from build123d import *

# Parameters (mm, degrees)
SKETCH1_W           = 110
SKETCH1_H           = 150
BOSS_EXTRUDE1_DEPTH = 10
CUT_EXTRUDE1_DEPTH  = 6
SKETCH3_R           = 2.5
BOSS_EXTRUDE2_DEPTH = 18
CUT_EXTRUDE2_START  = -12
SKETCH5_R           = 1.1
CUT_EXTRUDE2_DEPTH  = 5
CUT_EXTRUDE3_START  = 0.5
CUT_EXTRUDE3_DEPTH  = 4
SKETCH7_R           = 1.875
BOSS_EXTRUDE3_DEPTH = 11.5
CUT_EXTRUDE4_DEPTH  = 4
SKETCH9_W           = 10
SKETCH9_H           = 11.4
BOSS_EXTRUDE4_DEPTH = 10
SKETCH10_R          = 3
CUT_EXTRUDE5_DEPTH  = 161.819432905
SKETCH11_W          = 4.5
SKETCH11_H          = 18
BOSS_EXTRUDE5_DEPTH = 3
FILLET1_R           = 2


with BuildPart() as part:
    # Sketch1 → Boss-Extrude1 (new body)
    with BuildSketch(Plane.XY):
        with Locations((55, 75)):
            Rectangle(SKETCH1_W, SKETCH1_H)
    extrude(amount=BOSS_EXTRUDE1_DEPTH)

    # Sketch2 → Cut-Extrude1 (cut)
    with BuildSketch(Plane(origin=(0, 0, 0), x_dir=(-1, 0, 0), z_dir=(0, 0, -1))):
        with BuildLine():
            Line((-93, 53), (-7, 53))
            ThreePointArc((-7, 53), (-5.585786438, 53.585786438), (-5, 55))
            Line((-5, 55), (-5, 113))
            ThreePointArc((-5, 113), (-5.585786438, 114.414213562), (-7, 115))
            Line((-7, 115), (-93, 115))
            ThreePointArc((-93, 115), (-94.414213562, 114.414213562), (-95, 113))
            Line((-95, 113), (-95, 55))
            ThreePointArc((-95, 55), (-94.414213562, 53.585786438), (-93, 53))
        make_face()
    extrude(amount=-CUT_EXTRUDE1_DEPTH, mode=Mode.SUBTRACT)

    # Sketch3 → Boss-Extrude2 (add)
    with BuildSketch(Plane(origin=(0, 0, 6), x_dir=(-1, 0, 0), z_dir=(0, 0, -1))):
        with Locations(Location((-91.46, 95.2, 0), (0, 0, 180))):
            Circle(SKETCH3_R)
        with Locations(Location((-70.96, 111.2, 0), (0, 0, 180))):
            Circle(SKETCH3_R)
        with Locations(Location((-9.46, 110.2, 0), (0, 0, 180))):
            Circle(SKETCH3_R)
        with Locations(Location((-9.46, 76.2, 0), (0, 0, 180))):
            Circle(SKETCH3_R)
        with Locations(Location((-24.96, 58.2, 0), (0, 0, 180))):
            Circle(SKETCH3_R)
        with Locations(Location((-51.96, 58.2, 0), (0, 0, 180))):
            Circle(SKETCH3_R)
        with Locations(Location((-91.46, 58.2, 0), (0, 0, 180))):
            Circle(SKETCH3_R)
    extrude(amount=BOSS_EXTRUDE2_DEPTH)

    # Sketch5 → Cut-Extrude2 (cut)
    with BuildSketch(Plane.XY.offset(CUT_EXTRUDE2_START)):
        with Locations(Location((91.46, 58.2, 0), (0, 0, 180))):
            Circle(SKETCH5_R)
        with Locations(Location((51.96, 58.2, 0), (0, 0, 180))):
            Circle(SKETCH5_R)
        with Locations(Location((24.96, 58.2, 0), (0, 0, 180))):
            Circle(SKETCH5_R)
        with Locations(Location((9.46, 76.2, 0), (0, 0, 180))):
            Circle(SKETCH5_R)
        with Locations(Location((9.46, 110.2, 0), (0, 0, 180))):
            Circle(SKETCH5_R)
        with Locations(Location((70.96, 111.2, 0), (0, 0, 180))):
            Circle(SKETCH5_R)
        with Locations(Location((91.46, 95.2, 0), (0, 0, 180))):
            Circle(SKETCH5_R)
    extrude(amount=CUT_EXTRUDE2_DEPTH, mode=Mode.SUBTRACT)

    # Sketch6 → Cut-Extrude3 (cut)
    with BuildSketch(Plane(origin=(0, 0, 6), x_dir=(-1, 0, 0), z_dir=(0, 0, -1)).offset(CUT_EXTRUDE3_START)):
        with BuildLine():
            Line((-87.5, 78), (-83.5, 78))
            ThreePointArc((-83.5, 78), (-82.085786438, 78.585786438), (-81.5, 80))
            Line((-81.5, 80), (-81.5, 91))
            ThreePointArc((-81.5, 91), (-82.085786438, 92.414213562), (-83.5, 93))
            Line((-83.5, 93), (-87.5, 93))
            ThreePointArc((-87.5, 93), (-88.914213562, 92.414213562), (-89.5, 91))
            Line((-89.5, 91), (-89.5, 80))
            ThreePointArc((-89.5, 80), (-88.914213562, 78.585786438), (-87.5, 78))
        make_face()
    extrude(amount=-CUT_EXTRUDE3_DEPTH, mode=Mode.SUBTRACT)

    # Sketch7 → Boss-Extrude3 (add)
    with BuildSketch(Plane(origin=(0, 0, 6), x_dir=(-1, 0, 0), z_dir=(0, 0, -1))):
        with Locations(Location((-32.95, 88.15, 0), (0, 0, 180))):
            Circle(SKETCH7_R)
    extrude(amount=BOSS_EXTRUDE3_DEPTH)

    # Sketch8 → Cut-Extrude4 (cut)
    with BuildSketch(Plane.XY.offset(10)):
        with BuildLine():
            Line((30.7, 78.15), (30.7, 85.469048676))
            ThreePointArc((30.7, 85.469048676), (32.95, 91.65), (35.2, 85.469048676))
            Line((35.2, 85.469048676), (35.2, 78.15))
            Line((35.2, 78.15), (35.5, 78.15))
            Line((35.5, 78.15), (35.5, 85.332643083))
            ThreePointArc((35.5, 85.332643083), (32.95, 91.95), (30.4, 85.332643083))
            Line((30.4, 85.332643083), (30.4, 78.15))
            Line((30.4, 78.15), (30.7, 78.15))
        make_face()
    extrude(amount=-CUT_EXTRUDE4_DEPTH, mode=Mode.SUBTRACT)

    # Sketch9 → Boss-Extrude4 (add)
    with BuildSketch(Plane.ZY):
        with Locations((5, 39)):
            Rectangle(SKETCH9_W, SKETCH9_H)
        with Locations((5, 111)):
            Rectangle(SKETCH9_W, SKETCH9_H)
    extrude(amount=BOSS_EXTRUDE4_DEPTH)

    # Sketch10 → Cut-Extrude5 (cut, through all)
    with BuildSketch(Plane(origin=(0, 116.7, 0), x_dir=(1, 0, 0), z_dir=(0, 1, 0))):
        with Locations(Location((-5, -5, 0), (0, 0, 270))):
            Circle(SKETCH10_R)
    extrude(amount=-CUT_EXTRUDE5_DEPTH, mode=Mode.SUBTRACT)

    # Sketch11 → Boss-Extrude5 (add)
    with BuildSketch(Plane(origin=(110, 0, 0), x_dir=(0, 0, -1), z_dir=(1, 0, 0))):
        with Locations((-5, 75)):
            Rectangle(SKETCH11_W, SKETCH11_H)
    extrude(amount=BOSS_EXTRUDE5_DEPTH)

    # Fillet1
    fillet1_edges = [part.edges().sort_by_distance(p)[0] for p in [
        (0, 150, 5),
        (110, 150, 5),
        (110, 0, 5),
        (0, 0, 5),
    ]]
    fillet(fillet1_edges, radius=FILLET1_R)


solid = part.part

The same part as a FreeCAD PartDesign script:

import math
import FreeCAD as App
import Part
import Sketcher
Q = App.Units.Quantity


def edges_at(feature, points):
    """Names of the edges that pass closest to the given points."""
    edges = feature.Shape.Edges
    near = lambda p: min(range(len(edges)), key=lambda i: edges[i].distToShape(Part.Vertex(*p))[0])
    return sorted({f"Edge{near(p) + 1}" for p in points})


def add_polygon(sketch, points):
    """Adds a closed chain of lines whose ends are joined by coincident constraints."""
    first, n = sketch.GeometryCount, len(points)
    for a, b in zip(points, points[1:] + points[:1]):
        sketch.addGeometry(Part.LineSegment(App.Vector(*a, 0), App.Vector(*b, 0)), False)
    for i in range(n):
        sketch.addConstraint(Sketcher.Constraint("Coincident", first + i, 2, first + (i + 1) % n, 1))

doc = App.newDocument("Part")
body = doc.addObject("PartDesign::Body", "Body")

# Sketch on XY plane
sketch1 = doc.addObject("Sketcher::SketchObject", "Sketch")
body.addObject(sketch1)
sketch1.AttachmentSupport = (doc.XY_Plane, [""])
sketch1.MapMode = "FlatFace"
add_polygon(sketch1, [(0, 150), (0, 0), (110, 0), (110, 150)])  # lines 0-3
sketch1.addConstraint([
    Sketcher.Constraint("Vertical", 0),
    Sketcher.Constraint("Horizontal", 1),
    Sketcher.Constraint("Vertical", 2),
    Sketcher.Constraint("Horizontal", 3),
    Sketcher.Constraint("Coincident", 0, 2, -1, 1),
    Sketcher.Constraint("DistanceX", 1, 1, 1, 2, Q("110 mm")),
    Sketcher.Constraint("DistanceY", 0, 2, 0, 1, Q("150 mm")),
])
pad1 = doc.addObject("PartDesign::Pad", "Pad")
body.addObject(pad1)
pad1.Profile = sketch1
pad1.Length = 10

# Sketch on XY plane
sketch2 = doc.addObject("Sketcher::SketchObject", "Sketch001")
body.addObject(sketch2)
sketch2.AttachmentSupport = (doc.XY_Plane, [""])
sketch2.MapMode = "FlatFace"
sketch2.addGeometry([
    Part.LineSegment(App.Vector(93, 53, 0), App.Vector(7, 53, 0)),  # 0
    Part.ArcOfCircle(Part.Circle(App.Vector(7, 55, 0), App.Vector(0, 0, 1), 2), math.radians(-180), math.radians(-90)),  # 1
    Part.LineSegment(App.Vector(5, 55, 0), App.Vector(5, 113, 0)),  # 2
    Part.ArcOfCircle(Part.Circle(App.Vector(7, 113, 0), App.Vector(0, 0, 1), 2), math.radians(90), math.radians(180)),  # 3
    Part.LineSegment(App.Vector(7, 115, 0), App.Vector(93, 115, 0)),  # 4
    Part.ArcOfCircle(Part.Circle(App.Vector(93, 113, 0), App.Vector(0, 0, 1), 2), math.radians(0), math.radians(90)),  # 5
    Part.LineSegment(App.Vector(95, 113, 0), App.Vector(95, 55, 0)),  # 6
    Part.ArcOfCircle(Part.Circle(App.Vector(93, 55, 0), App.Vector(0, 0, 1), 2), math.radians(-90), math.radians(0)),  # 7
], False)
sketch2.addConstraint([
    Sketcher.Constraint("Tangent", 0, 2, 1, 2),
    Sketcher.Constraint("Tangent", 1, 1, 2, 1),
    Sketcher.Constraint("Tangent", 2, 2, 3, 2),
    Sketcher.Constraint("Tangent", 3, 1, 4, 1),
    Sketcher.Constraint("Tangent", 4, 2, 5, 2),
    Sketcher.Constraint("Tangent", 5, 1, 6, 1),
    Sketcher.Constraint("Tangent", 6, 2, 7, 2),
    Sketcher.Constraint("Tangent", 7, 1, 0, 1),
    Sketcher.Constraint("Horizontal", 0),
    Sketcher.Constraint("Vertical", 2),
    Sketcher.Constraint("Horizontal", 4),
    Sketcher.Constraint("Vertical", 6),
    Sketcher.Constraint("Equal", 1, 3),
    Sketcher.Constraint("Equal", 3, 5),
    Sketcher.Constraint("Equal", 5, 7),
    Sketcher.Constraint("Radius", 1, Q("2 mm")),
    Sketcher.Constraint("DistanceX", 0, 2, 0, 1, Q("86 mm")),
    Sketcher.Constraint("DistanceY", 2, 1, 2, 2, Q("58 mm")),
    Sketcher.Constraint("DistanceX", -1, 1, 1, 3, Q("7 mm")),
    Sketcher.Constraint("DistanceY", -1, 1, 1, 3, Q("55 mm")),
])
pocket1 = doc.addObject("PartDesign::Pocket", "Pocket")
body.addObject(pocket1)
pocket1.Profile = sketch2
pocket1.Length = 6
pocket1.Reversed = True

# Sketch on XY plane
sketch3 = doc.addObject("Sketcher::SketchObject", "Sketch002")
body.addObject(sketch3)
sketch3.AttachmentSupport = (doc.XY_Plane, [""])
sketch3.MapMode = "FlatFace"
sketch3.AttachmentOffset = App.Placement(App.Vector(0, 0, 6), App.Rotation())
sketch3.addGeometry([
    Part.Circle(App.Vector(91.5, 95.2, 0), App.Vector(0, 0, 1), 2.5),  # 0
    Part.Circle(App.Vector(71, 111.2, 0), App.Vector(0, 0, 1), 2.5),  # 1
    Part.Circle(App.Vector(9.5, 110.2, 0), App.Vector(0, 0, 1), 2.5),  # 2
    Part.Circle(App.Vector(9.5, 76.2, 0), App.Vector(0, 0, 1), 2.5),  # 3
    Part.Circle(App.Vector(25, 58.2, 0), App.Vector(0, 0, 1), 2.5),  # 4
    Part.Circle(App.Vector(52, 58.2, 0), App.Vector(0, 0, 1), 2.5),  # 5
    Part.Circle(App.Vector(91.5, 58.2, 0), App.Vector(0, 0, 1), 2.5),  # 6
], False)
sketch3.addConstraint([
    Sketcher.Constraint("Equal", 0, 1),
    Sketcher.Constraint("Equal", 1, 2),
    Sketcher.Constraint("Equal", 2, 3),
    Sketcher.Constraint("Equal", 3, 4),
    Sketcher.Constraint("Equal", 4, 5),
    Sketcher.Constraint("Equal", 5, 6),
    Sketcher.Constraint("Horizontal", 4, 3, 5, 3),
    Sketcher.Constraint("Horizontal", 5, 3, 6, 3),
    Sketcher.Constraint("Vertical", 2, 3, 3, 3),
    Sketcher.Constraint("Vertical", 0, 3, 6, 3),
    Sketcher.Constraint("Diameter", 0, Q("5 mm")),
    Sketcher.Constraint("DistanceY", 0, 3, 1, 3, Q("16 mm")),
    Sketcher.Constraint("DistanceY", 2, 3, 1, 3, Q("1 mm")),
    Sketcher.Constraint("DistanceX", 2, 3, 0, 3, Q("82 mm")),
    Sketcher.Constraint("DistanceY", 3, 3, 2, 3, Q("34 mm")),
    Sketcher.Constraint("DistanceY", 4, 3, 3, 3, Q("18 mm")),
    Sketcher.Constraint("DistanceX", 4, 3, 1, 3, Q("46 mm")),
    Sketcher.Constraint("DistanceX", 4, 3, 5, 3, Q("27 mm")),
    Sketcher.Constraint("DistanceY", -1, 1, 0, 3, Q("95.2 mm")),
    Sketcher.Constraint("DistanceX", 1, 3, 0, 3, Q("20.5 mm")),
    Sketcher.Constraint("DistanceX", -1, 1, 0, 3, Q("91.46 mm")),
])
pad2 = doc.addObject("PartDesign::Pad", "Pad001")
body.addObject(pad2)
pad2.Profile = sketch3
pad2.Length = 18
pad2.Reversed = True

# Sketch on XY plane
sketch4 = doc.addObject("Sketcher::SketchObject", "Sketch003")
body.addObject(sketch4)
sketch4.AttachmentSupport = (doc.XY_Plane, [""])
sketch4.MapMode = "FlatFace"
sketch4.AttachmentOffset = App.Placement(App.Vector(0, 0, -12), App.Rotation())
sketch4.addGeometry([
    Part.Circle(App.Vector(91.5, 58.2, 0), App.Vector(0, 0, 1), 1.1),  # 0
    Part.Circle(App.Vector(52, 58.2, 0), App.Vector(0, 0, 1), 1.1),  # 1
    Part.Circle(App.Vector(25, 58.2, 0), App.Vector(0, 0, 1), 1.1),  # 2
    Part.Circle(App.Vector(9.5, 76.2, 0), App.Vector(0, 0, 1), 1.1),  # 3
    Part.Circle(App.Vector(9.5, 110.2, 0), App.Vector(0, 0, 1), 1.1),  # 4
    Part.Circle(App.Vector(71, 111.2, 0), App.Vector(0, 0, 1), 1.1),  # 5
    Part.Circle(App.Vector(91.5, 95.2, 0), App.Vector(0, 0, 1), 1.1),  # 6
], False)
sketch4.addConstraint([
    Sketcher.Constraint("Equal", 0, 1),
    Sketcher.Constraint("Equal", 1, 2),
    Sketcher.Constraint("Equal", 2, 3),
    Sketcher.Constraint("Equal", 3, 4),
    Sketcher.Constraint("Equal", 4, 5),
    Sketcher.Constraint("Equal", 5, 6),
    Sketcher.Constraint("Horizontal", 0, 3, 1, 3),
    Sketcher.Constraint("Horizontal", 1, 3, 2, 3),
    Sketcher.Constraint("Vertical", 3, 3, 4, 3),
    Sketcher.Constraint("Vertical", 0, 3, 6, 3),
    Sketcher.Constraint("Diameter", 0, Q("2.2 mm")),
    Sketcher.Constraint("DistanceX", 2, 3, 1, 3, Q("27 mm")),
    Sketcher.Constraint("DistanceY", 2, 3, 3, 3, Q("18 mm")),
    Sketcher.Constraint("DistanceX", 3, 3, 0, 3, Q("82 mm")),
    Sketcher.Constraint("DistanceY", 3, 3, 4, 3, Q("34 mm")),
    Sketcher.Constraint("DistanceX", 1, 3, 5, 3, Q("19 mm")),
    Sketcher.Constraint("DistanceY", 1, 3, 5, 3, Q("53 mm")),
    Sketcher.Constraint("DistanceY", 6, 3, 5, 3, Q("16 mm")),
    Sketcher.Constraint("DistanceY", -1, 1, 0, 3, Q("58.2 mm")),
    Sketcher.Constraint("DistanceX", 1, 3, 0, 3, Q("39.5 mm")),
    Sketcher.Constraint("DistanceX", -1, 1, 0, 3, Q("91.46 mm")),
])
pocket2 = doc.addObject("PartDesign::Pocket", "Pocket001")
body.addObject(pocket2)
pocket2.Profile = sketch4
pocket2.Length = 5
pocket2.Reversed = True

# Sketch on XY plane
sketch5 = doc.addObject("Sketcher::SketchObject", "Sketch004")
body.addObject(sketch5)
sketch5.AttachmentSupport = (doc.XY_Plane, [""])
sketch5.MapMode = "FlatFace"
sketch5.AttachmentOffset = App.Placement(App.Vector(0, 0, 5.5), App.Rotation())
sketch5.addGeometry([
    Part.LineSegment(App.Vector(87.5, 78, 0), App.Vector(83.5, 78, 0)),  # 0
    Part.ArcOfCircle(Part.Circle(App.Vector(83.5, 80, 0), App.Vector(0, 0, 1), 2), math.radians(-180), math.radians(-90)),  # 1
    Part.LineSegment(App.Vector(81.5, 80, 0), App.Vector(81.5, 91, 0)),  # 2
    Part.ArcOfCircle(Part.Circle(App.Vector(83.5, 91, 0), App.Vector(0, 0, 1), 2), math.radians(90), math.radians(180)),  # 3
    Part.LineSegment(App.Vector(83.5, 93, 0), App.Vector(87.5, 93, 0)),  # 4
    Part.ArcOfCircle(Part.Circle(App.Vector(87.5, 91, 0), App.Vector(0, 0, 1), 2), math.radians(0), math.radians(90)),  # 5
    Part.LineSegment(App.Vector(89.5, 91, 0), App.Vector(89.5, 80, 0)),  # 6
    Part.ArcOfCircle(Part.Circle(App.Vector(87.5, 80, 0), App.Vector(0, 0, 1), 2), math.radians(-90), math.radians(0)),  # 7
], False)
sketch5.addConstraint([
    Sketcher.Constraint("Tangent", 0, 2, 1, 2),
    Sketcher.Constraint("Tangent", 1, 1, 2, 1),
    Sketcher.Constraint("Tangent", 2, 2, 3, 2),
    Sketcher.Constraint("Tangent", 3, 1, 4, 1),
    Sketcher.Constraint("Tangent", 4, 2, 5, 2),
    Sketcher.Constraint("Tangent", 5, 1, 6, 1),
    Sketcher.Constraint("Tangent", 6, 2, 7, 2),
    Sketcher.Constraint("Tangent", 7, 1, 0, 1),
    Sketcher.Constraint("Horizontal", 0),
    Sketcher.Constraint("Vertical", 2),
    Sketcher.Constraint("Horizontal", 4),
    Sketcher.Constraint("Vertical", 6),
    Sketcher.Constraint("Equal", 1, 3),
    Sketcher.Constraint("Equal", 3, 5),
    Sketcher.Constraint("Equal", 5, 7),
    Sketcher.Constraint("Radius", 1, Q("2 mm")),
    Sketcher.Constraint("DistanceX", 0, 2, 0, 1, Q("4 mm")),
    Sketcher.Constraint("DistanceY", 2, 1, 2, 2, Q("11 mm")),
    Sketcher.Constraint("DistanceY", -1, 1, 1, 3, Q("80 mm")),
    Sketcher.Constraint("DistanceX", -1, 1, 1, 3, Q("83.5 mm")),
])
pocket3 = doc.addObject("PartDesign::Pocket", "Pocket002")
body.addObject(pocket3)
pocket3.Profile = sketch5
pocket3.Length = 4
pocket3.Reversed = True

# Sketch on XY plane
sketch6 = doc.addObject("Sketcher::SketchObject", "Sketch005")
body.addObject(sketch6)
sketch6.AttachmentSupport = (doc.XY_Plane, [""])
sketch6.MapMode = "FlatFace"
sketch6.AttachmentOffset = App.Placement(App.Vector(0, 0, 6), App.Rotation())
sketch6.addGeometry(Part.Circle(App.Vector(33, 88.2, 0), App.Vector(0, 0, 1), 1.9), False)
sketch6.addConstraint([
    Sketcher.Constraint("Diameter", 0, Q("3.75 mm")),
    Sketcher.Constraint("DistanceX", -1, 1, 0, 3, Q("32.95 mm")),
    Sketcher.Constraint("DistanceY", -1, 1, 0, 3, Q("88.15 mm")),
])
pad3 = doc.addObject("PartDesign::Pad", "Pad002")
body.addObject(pad3)
pad3.Profile = sketch6
pad3.Length = 11.5
pad3.Reversed = True

# Sketch on XY plane
sketch7 = doc.addObject("Sketcher::SketchObject", "Sketch006")
body.addObject(sketch7)
sketch7.AttachmentSupport = (doc.XY_Plane, [""])
sketch7.MapMode = "FlatFace"
sketch7.AttachmentOffset = App.Placement(App.Vector(0, 0, 10), App.Rotation())
sketch7.addGeometry([
    Part.LineSegment(App.Vector(30.7, 78.15, 0), App.Vector(30.7, 85.47, 0)),  # 0
    Part.ArcOfCircle(Part.Circle(App.Vector(32.95, 88.15, 0), App.Vector(0, 0, 1), 3.5), math.radians(-50), math.radians(230)),  # 1
    Part.LineSegment(App.Vector(35.2, 85.47, 0), App.Vector(35.2, 78.15, 0)),  # 2
    Part.LineSegment(App.Vector(35.2, 78.15, 0), App.Vector(35.5, 78.15, 0)),  # 3
    Part.LineSegment(App.Vector(35.5, 78.15, 0), App.Vector(35.5, 85.33, 0)),  # 4
    Part.ArcOfCircle(Part.Circle(App.Vector(32.95, 88.15, 0), App.Vector(0, 0, 1), 3.8), math.radians(-48), math.radians(228)),  # 5
    Part.LineSegment(App.Vector(30.4, 85.33, 0), App.Vector(30.4, 78.15, 0)),  # 6
    Part.LineSegment(App.Vector(30.4, 78.15, 0), App.Vector(30.7, 78.15, 0)),  # 7
], False)
sketch7.addConstraint([
    Sketcher.Constraint("Coincident", 0, 2, 1, 2),
    Sketcher.Constraint("Coincident", 1, 1, 2, 1),
    Sketcher.Constraint("Coincident", 2, 2, 3, 1),
    Sketcher.Constraint("Coincident", 3, 2, 4, 1),
    Sketcher.Constraint("Coincident", 4, 2, 5, 1),
    Sketcher.Constraint("Coincident", 5, 2, 6, 1),
    Sketcher.Constraint("Coincident", 6, 2, 7, 1),
    Sketcher.Constraint("Coincident", 7, 2, 0, 1),
    Sketcher.Constraint("Vertical", 0),
    Sketcher.Constraint("Vertical", 2),
    Sketcher.Constraint("Horizontal", 3),
    Sketcher.Constraint("Vertical", 4),
    Sketcher.Constraint("Vertical", 6),
    Sketcher.Constraint("Horizontal", 7),
    Sketcher.Constraint("Coincident", 5, 3, 1, 3),
    Sketcher.Constraint("Horizontal", 0, 2, 1, 1),
    Sketcher.Constraint("Horizontal", 4, 2, 5, 2),
    Sketcher.Constraint("Horizontal", 3, 2, 6, 2),
    Sketcher.Constraint("Radius", 1, Q("3.5 mm")),
    Sketcher.Constraint("Radius", 5, Q("3.8 mm")),
    Sketcher.Constraint("DistanceX", 3, 1, 3, 2, Q("0.3 mm")),
    Sketcher.Constraint("DistanceY", 2, 2, 1, 3, Q("10 mm")),
    Sketcher.Constraint("DistanceX", -1, 1, 0, 2, Q("30.7 mm")),
    Sketcher.Constraint("DistanceX", -1, 1, 1, 1, Q("35.2 mm")),
    Sketcher.Constraint("DistanceY", -1, 1, 1, 3, Q("88.15 mm")),
])
pocket4 = doc.addObject("PartDesign::Pocket", "Pocket003")
body.addObject(pocket4)
pocket4.Profile = sketch7
pocket4.Length = 4

# Sketch on YZ plane
sketch8 = doc.addObject("Sketcher::SketchObject", "Sketch007")
body.addObject(sketch8)
sketch8.AttachmentSupport = (doc.YZ_Plane, [""])
sketch8.MapMode = "FlatFace"
add_polygon(sketch8, [(45, 0), (33, 0), (33, 10), (45, 10)])  # lines 0-3
add_polygon(sketch8, [(117, 0), (105, 0), (105, 10), (117, 10)])  # lines 4-7
sketch8.addConstraint([
    Sketcher.Constraint("Horizontal", 0),
    Sketcher.Constraint("Vertical", 1),
    Sketcher.Constraint("Horizontal", 2),
    Sketcher.Constraint("Vertical", 3),
    Sketcher.Constraint("Horizontal", 4),
    Sketcher.Constraint("Vertical", 5),
    Sketcher.Constraint("Horizontal", 6),
    Sketcher.Constraint("Vertical", 7),
    Sketcher.Constraint("PointOnObject", 0, 2, -1),
    Sketcher.Constraint("PointOnObject", 4, 2, -1),
    Sketcher.Constraint("Horizontal", 2, 2, 5, 2),
    Sketcher.Constraint("Equal", 2, 4),
    Sketcher.Constraint("DistanceY", 1, 1, 1, 2, Q("10 mm")),
    Sketcher.Constraint("DistanceX", 0, 2, 0, 1, Q("11.4 mm")),
    Sketcher.Constraint("DistanceX", 0, 2, 4, 2, Q("72 mm")),
    Sketcher.Constraint("DistanceX", -1, 1, 0, 2, Q("33.3 mm")),
])
pad4 = doc.addObject("PartDesign::Pad", "Pad003")
body.addObject(pad4)
pad4.Profile = sketch8
pad4.Length = 10
pad4.Reversed = True

# Sketch on XZ plane
sketch9 = doc.addObject("Sketcher::SketchObject", "Sketch008")
body.addObject(sketch9)
sketch9.AttachmentSupport = (doc.XZ_Plane, [""])
sketch9.MapMode = "FlatFace"
sketch9.AttachmentOffset = App.Placement(App.Vector(0, 0, -116.7), App.Rotation())
sketch9.addGeometry(Part.Circle(App.Vector(-5, 5, 0), App.Vector(0, 0, 1), 3), False)
sketch9.addConstraint([
    Sketcher.Constraint("Diameter", 0, Q("6 mm")),
    Sketcher.Constraint("DistanceX", 0, 3, -1, 1, Q("5 mm")),
    Sketcher.Constraint("DistanceY", -1, 1, 0, 3, Q("5 mm")),
])
pocket5 = doc.addObject("PartDesign::Pocket", "Pocket004")
body.addObject(pocket5)
pocket5.Profile = sketch9
pocket5.Type = "ThroughAll"
pocket5.Reversed = True

# Sketch on YZ plane
sketch10 = doc.addObject("Sketcher::SketchObject", "Sketch009")
body.addObject(sketch10)
sketch10.AttachmentSupport = (doc.YZ_Plane, [""])
sketch10.MapMode = "FlatFace"
sketch10.AttachmentOffset = App.Placement(App.Vector(0, 0, 110), App.Rotation())
add_polygon(sketch10, [(84, 7.2), (66, 7.2), (66, 2.8), (84, 2.8)])  # lines 0-3
sketch10.addConstraint([
    Sketcher.Constraint("Horizontal", 0),
    Sketcher.Constraint("Vertical", 1),
    Sketcher.Constraint("Horizontal", 2),
    Sketcher.Constraint("Vertical", 3),
    Sketcher.Constraint("DistanceX", 0, 2, 0, 1, Q("18 mm")),
    Sketcher.Constraint("DistanceY", 1, 2, 1, 1, Q("4.5 mm")),
    Sketcher.Constraint("DistanceX", -1, 1, 0, 2, Q("66 mm")),
    Sketcher.Constraint("DistanceY", -1, 1, 0, 2, Q("7.25 mm")),
])
pad5 = doc.addObject("PartDesign::Pad", "Pad004")
body.addObject(pad5)
pad5.Profile = sketch10
pad5.Length = 3
doc.recompute()

fillet = doc.addObject("PartDesign::Fillet", "Fillet")
body.addObject(fillet)
fillet.Base = (pad5, edges_at(pad5, [
    (0, 150, 5),
    (110, 150, 5),
    (110, 0, 5),
    (0, 0, 5),
]))
fillet.Radius = 2

doc.recompute()
